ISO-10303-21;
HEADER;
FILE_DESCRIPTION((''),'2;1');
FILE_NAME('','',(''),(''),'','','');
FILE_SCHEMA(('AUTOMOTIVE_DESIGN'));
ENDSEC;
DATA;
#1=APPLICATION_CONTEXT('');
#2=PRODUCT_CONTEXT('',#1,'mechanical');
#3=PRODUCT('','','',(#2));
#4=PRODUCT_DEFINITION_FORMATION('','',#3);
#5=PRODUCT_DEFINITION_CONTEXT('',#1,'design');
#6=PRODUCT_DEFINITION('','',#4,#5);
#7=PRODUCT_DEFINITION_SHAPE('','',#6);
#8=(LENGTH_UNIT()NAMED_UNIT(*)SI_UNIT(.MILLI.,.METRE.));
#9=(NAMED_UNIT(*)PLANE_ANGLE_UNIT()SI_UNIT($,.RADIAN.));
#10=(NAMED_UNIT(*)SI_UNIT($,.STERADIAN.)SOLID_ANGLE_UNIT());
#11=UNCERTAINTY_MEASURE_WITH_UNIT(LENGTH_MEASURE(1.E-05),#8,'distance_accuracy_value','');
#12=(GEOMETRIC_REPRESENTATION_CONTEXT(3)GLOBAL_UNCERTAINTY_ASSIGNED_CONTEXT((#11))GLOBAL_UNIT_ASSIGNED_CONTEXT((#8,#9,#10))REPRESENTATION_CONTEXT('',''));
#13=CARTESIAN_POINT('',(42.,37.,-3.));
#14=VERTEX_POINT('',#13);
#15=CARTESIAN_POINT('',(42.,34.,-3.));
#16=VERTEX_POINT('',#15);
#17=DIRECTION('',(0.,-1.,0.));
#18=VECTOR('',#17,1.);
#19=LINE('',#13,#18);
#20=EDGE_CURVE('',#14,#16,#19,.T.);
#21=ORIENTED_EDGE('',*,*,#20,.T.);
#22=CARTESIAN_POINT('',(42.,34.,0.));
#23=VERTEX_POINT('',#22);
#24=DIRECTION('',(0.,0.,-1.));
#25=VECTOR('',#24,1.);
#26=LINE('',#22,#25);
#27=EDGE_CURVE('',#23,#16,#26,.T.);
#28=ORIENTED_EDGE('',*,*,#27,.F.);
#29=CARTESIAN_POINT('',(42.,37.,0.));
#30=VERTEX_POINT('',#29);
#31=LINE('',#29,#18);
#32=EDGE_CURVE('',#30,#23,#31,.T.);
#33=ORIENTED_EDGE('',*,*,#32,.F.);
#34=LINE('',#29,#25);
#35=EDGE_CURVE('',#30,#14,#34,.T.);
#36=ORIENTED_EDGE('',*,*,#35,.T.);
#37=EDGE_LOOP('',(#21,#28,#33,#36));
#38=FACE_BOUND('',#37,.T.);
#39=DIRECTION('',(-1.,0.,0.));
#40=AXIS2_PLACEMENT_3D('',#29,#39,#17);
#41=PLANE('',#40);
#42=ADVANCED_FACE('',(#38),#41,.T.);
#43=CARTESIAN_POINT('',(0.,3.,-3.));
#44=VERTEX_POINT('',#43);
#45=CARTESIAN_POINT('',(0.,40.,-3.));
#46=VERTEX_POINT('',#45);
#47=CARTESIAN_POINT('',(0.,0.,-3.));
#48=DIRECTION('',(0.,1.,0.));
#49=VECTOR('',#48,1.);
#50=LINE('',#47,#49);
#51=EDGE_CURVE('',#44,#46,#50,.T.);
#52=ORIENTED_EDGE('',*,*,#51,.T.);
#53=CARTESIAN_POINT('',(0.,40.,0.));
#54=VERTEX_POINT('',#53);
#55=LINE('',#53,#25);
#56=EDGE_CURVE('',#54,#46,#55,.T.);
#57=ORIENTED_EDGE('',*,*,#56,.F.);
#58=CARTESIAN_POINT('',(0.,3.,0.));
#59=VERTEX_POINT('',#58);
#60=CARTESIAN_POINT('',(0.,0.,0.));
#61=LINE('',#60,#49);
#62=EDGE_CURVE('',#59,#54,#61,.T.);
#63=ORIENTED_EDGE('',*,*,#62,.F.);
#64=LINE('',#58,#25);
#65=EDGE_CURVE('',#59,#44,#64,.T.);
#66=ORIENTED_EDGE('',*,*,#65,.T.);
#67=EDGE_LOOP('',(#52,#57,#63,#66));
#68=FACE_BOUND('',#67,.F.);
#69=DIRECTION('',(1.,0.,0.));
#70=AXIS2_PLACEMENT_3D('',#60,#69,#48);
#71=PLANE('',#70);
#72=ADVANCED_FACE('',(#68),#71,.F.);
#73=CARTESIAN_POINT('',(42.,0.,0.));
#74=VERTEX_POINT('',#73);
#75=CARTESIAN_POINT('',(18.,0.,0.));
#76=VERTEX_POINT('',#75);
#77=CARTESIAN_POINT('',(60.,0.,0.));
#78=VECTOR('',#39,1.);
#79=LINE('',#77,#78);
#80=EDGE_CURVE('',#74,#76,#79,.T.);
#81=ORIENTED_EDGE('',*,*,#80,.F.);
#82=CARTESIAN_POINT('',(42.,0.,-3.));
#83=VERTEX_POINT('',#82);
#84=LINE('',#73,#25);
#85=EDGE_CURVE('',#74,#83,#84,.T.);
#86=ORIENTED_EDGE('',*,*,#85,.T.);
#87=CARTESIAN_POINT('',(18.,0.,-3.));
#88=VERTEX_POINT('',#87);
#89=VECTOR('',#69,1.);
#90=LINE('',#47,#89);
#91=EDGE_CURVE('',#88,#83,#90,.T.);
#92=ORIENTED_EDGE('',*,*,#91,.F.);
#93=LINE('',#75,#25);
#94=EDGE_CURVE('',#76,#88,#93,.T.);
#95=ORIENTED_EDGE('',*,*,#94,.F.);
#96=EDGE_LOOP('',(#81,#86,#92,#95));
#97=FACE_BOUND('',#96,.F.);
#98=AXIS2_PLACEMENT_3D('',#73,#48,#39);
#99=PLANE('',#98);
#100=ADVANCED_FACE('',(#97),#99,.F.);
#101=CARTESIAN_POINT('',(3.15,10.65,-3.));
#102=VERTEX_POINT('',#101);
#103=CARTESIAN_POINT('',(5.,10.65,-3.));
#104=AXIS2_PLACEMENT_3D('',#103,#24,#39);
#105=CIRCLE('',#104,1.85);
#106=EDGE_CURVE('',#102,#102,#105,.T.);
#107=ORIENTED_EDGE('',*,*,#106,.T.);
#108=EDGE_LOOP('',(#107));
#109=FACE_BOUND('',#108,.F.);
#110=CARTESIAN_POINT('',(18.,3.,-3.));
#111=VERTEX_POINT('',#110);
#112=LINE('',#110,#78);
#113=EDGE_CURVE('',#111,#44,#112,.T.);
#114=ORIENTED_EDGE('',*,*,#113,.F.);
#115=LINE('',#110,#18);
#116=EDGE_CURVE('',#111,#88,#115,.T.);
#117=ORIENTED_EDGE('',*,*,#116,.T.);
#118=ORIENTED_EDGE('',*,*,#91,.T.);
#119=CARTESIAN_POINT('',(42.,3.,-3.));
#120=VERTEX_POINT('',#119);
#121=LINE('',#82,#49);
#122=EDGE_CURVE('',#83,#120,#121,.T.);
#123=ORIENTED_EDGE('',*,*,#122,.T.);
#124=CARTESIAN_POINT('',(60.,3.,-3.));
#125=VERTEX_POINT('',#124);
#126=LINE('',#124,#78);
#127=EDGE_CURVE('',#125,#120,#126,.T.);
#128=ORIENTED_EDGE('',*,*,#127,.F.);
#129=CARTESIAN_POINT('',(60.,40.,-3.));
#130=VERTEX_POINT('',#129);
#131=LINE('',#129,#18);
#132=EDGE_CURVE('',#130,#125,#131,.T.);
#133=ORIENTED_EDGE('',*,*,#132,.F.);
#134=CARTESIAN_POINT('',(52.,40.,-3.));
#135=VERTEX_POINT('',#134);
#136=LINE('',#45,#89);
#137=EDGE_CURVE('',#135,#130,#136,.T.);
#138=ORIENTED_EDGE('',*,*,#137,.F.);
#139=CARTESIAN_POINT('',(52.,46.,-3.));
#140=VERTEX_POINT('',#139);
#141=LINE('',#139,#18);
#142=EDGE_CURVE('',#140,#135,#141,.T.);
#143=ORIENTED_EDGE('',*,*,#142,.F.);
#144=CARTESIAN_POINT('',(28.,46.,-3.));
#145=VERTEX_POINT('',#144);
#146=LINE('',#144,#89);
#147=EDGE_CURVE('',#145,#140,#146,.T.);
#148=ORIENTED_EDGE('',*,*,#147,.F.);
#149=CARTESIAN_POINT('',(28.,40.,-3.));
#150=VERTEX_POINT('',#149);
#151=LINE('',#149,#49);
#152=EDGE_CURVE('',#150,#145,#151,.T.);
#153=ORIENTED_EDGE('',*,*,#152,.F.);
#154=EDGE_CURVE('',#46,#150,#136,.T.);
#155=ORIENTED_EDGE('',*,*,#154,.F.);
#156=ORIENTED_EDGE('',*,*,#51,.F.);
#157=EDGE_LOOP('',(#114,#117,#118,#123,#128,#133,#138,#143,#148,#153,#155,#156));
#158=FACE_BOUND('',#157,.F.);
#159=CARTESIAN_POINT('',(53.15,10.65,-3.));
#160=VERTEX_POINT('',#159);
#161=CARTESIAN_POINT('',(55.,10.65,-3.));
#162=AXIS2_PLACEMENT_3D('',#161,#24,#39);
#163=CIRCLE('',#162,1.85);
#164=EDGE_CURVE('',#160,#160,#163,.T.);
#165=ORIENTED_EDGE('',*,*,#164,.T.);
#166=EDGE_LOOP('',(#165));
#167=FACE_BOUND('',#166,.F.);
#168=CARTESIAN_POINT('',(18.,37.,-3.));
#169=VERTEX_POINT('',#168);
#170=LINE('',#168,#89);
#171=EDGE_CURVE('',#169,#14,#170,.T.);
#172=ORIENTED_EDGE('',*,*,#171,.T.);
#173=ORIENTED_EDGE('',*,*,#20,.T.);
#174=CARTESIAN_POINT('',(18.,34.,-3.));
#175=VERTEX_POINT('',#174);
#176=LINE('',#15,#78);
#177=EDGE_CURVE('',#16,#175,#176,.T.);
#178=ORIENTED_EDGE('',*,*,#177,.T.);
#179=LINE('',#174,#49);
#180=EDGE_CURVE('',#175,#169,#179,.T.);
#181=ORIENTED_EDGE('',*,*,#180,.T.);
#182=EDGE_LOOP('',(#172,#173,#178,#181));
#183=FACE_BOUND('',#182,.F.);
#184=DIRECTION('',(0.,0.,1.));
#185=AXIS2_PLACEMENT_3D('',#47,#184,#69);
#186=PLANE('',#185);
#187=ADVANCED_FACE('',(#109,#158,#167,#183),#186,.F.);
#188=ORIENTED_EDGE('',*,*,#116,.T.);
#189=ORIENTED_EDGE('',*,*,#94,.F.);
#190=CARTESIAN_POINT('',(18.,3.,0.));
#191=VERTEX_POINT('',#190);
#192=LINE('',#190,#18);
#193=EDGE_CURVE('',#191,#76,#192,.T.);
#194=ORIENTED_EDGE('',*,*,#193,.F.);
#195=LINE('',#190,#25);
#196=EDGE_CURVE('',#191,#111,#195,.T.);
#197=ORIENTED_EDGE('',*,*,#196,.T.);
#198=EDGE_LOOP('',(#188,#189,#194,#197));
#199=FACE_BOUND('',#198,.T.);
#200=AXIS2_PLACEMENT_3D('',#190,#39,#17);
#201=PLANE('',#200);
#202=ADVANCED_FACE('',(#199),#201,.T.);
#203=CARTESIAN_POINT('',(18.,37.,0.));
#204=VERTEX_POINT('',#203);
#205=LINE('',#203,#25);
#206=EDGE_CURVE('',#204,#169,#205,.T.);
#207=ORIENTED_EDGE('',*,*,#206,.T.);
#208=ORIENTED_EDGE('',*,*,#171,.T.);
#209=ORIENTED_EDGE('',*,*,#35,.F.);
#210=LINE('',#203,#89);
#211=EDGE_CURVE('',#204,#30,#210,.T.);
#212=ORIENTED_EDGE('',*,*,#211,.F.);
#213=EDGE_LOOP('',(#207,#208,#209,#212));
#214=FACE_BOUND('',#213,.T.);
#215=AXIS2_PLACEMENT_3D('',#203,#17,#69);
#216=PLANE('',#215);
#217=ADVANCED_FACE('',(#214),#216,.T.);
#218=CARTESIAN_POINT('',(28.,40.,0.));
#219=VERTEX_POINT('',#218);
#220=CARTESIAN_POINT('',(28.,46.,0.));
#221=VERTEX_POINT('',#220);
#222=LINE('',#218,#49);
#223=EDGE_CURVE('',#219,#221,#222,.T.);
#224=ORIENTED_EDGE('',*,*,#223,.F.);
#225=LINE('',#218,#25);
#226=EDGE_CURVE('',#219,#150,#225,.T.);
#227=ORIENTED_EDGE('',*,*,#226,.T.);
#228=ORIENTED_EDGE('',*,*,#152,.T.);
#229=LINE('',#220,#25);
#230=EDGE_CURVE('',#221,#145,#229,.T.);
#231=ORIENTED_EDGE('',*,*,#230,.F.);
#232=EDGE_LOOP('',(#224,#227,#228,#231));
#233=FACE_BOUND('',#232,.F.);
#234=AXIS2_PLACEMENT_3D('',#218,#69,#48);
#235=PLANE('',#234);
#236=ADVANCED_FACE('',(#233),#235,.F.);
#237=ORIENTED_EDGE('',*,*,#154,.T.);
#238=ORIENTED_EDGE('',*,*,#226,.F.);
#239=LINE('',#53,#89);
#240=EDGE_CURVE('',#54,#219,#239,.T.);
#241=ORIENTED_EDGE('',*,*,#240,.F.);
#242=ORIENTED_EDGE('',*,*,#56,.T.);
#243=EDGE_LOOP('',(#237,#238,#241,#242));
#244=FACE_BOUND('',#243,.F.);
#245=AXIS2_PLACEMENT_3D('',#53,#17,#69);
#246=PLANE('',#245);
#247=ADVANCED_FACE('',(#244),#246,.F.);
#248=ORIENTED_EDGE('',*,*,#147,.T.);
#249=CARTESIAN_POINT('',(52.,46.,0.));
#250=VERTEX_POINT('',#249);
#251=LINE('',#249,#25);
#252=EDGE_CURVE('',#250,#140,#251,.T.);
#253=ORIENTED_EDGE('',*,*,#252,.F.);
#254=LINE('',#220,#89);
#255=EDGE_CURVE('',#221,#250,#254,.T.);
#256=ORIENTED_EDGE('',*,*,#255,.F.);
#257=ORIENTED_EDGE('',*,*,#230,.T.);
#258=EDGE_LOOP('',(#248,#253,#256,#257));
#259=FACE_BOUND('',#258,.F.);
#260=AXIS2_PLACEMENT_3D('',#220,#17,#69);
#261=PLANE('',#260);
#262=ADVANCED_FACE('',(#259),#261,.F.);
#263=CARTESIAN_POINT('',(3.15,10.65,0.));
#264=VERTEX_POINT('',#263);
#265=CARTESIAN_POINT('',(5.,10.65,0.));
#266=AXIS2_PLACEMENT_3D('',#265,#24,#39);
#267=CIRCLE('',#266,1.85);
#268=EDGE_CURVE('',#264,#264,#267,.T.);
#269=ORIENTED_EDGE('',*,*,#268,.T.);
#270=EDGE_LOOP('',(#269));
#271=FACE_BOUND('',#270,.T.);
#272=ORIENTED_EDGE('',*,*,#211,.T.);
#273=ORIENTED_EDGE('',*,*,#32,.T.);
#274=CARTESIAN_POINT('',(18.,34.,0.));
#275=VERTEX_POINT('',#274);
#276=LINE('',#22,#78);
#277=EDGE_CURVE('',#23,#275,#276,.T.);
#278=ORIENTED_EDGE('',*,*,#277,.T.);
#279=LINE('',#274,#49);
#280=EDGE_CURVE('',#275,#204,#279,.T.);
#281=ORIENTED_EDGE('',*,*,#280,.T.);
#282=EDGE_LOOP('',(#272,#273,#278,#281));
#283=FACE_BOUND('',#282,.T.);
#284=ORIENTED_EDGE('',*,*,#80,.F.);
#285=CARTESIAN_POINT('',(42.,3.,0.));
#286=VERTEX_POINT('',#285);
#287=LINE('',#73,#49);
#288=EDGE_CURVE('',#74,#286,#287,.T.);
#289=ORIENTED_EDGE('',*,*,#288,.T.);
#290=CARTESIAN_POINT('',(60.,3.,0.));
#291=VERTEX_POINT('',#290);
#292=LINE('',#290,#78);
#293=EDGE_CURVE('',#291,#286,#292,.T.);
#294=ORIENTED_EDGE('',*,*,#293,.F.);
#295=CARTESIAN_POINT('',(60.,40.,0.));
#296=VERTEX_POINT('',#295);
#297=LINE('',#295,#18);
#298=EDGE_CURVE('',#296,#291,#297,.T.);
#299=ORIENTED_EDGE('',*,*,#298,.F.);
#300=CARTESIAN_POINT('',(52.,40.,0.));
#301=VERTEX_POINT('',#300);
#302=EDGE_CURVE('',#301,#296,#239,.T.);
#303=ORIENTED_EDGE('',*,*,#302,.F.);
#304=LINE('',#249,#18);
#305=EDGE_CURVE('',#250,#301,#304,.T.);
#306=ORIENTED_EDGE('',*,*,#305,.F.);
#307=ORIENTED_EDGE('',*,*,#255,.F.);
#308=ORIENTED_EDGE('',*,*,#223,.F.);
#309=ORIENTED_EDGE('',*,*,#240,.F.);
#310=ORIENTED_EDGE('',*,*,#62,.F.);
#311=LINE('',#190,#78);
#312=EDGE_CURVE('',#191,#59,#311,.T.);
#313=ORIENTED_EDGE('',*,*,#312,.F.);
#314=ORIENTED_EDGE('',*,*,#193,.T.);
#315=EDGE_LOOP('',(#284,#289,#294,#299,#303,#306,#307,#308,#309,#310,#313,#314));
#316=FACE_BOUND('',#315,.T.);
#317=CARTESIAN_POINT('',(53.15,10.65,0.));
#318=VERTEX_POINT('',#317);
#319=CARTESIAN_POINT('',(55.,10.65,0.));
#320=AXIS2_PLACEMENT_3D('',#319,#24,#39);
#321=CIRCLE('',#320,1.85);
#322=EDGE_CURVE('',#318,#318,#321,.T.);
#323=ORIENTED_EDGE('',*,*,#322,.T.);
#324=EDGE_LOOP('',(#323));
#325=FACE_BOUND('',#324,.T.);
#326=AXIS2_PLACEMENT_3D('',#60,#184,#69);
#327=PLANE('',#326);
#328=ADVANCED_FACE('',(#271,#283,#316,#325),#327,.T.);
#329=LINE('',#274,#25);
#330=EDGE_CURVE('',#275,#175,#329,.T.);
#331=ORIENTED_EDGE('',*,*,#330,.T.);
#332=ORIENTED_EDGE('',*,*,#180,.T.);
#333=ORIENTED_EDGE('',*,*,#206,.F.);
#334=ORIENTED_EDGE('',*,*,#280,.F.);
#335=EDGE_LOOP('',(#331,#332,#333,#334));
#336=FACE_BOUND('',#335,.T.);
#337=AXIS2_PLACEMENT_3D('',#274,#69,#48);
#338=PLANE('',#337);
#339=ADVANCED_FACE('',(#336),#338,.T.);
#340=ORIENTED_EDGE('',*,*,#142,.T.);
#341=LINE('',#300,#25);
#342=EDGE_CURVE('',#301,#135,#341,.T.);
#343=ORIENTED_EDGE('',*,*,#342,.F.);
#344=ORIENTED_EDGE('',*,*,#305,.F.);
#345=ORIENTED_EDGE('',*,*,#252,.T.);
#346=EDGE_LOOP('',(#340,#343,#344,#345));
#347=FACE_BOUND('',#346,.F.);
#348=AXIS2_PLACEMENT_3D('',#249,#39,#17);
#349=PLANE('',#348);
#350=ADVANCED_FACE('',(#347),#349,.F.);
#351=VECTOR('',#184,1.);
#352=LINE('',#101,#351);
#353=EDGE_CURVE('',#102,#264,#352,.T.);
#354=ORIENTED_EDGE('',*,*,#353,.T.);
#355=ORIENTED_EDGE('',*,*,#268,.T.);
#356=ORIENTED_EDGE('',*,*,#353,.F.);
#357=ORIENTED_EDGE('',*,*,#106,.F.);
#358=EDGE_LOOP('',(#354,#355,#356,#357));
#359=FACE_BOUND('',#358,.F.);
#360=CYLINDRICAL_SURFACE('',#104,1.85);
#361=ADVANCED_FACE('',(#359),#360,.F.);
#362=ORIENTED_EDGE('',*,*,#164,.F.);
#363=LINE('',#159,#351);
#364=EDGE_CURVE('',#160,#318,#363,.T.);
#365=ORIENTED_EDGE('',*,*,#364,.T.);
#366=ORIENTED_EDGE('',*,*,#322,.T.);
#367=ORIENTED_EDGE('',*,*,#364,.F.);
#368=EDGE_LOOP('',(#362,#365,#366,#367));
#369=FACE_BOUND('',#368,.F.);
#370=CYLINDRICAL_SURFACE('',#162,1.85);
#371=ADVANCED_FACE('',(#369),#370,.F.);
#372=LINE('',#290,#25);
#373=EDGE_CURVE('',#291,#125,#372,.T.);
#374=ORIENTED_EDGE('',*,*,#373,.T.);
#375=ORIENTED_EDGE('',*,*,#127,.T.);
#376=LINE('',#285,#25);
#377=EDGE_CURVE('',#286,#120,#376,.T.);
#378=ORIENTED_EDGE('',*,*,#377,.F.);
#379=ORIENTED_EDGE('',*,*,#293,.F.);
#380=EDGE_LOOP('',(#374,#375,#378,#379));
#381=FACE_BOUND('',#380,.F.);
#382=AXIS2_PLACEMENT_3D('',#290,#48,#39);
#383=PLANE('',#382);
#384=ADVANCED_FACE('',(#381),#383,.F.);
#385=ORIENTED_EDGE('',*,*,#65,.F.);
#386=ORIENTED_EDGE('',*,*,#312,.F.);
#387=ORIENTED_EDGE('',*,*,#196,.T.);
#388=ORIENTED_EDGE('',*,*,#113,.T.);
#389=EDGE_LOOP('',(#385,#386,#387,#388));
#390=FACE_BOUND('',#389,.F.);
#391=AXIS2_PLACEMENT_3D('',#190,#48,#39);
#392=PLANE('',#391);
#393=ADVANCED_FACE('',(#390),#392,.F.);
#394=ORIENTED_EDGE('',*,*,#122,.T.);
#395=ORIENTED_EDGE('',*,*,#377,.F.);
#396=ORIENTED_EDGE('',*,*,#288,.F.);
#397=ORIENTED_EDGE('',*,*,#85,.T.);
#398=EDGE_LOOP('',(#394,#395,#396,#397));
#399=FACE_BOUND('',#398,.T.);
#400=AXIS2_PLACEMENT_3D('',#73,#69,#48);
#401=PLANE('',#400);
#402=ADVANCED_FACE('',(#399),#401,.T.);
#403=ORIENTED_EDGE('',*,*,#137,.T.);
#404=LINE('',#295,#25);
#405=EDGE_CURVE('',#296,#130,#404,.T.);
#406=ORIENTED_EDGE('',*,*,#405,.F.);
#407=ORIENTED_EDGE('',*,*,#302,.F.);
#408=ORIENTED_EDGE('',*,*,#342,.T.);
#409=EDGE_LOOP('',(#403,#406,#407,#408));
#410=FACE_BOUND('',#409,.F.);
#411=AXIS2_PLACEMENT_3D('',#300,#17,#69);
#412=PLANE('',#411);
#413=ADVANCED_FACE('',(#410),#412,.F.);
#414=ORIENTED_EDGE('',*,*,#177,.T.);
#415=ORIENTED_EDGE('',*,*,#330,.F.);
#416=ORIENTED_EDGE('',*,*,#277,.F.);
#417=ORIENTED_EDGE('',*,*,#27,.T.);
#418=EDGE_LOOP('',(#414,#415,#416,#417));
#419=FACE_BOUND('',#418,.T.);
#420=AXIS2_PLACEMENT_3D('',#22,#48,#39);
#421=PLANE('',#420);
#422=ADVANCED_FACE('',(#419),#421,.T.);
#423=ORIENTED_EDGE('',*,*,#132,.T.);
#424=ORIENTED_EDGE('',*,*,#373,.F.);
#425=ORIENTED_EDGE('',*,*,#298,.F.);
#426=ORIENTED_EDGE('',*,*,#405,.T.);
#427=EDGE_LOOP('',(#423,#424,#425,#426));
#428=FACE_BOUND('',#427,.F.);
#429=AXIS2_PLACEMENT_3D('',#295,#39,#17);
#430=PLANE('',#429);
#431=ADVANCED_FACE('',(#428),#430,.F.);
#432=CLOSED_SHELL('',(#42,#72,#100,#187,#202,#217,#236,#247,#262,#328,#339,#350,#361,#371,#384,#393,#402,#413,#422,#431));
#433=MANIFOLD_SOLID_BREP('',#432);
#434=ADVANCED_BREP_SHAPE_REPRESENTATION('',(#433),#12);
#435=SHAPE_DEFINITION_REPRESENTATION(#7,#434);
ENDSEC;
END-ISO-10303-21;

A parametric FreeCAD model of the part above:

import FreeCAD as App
import Part
import Sketcher

doc = App.newDocument("Part")
body = doc.addObject("PartDesign::Body", "Body")

sketch1 = body.newObject("Sketcher::SketchObject", "Sketch")
sketch1.AttachmentSupport = (doc.getObject("XY_Plane"), [""])
sketch1.MapMode = "FlatFace"
sketch1.addGeometry([
    Part.LineSegment(App.Vector(60, 0, 0), App.Vector(60, 40, 0)),
    Part.LineSegment(App.Vector(60, 40, 0), App.Vector(52, 40, 0)),
    Part.LineSegment(App.Vector(52, 40, 0), App.Vector(52, 46, 0)),
    Part.LineSegment(App.Vector(52, 46, 0), App.Vector(28, 46, 0)),
    Part.LineSegment(App.Vector(28, 46, 0), App.Vector(28, 40, 0)),
    Part.LineSegment(App.Vector(28, 40, 0), App.Vector(0, 40, 0)),
    Part.LineSegment(App.Vector(0, 40, 0), App.Vector(0, 0, 0)),
    Part.LineSegment(App.Vector(0, 0, 0), App.Vector(60, 0, 0)),
    Part.LineSegment(App.Vector(42, 37, 0), App.Vector(42, 34, 0)),
    Part.LineSegment(App.Vector(42, 34, 0), App.Vector(18, 34, 0)),
    Part.LineSegment(App.Vector(18, 34, 0), App.Vector(18, 37, 0)),
    Part.LineSegment(App.Vector(18, 37, 0), App.Vector(42, 37, 0)),
], False)
sketch1.addConstraint([
    Sketcher.Constraint("Coincident", 0, 2, 1, 1),
    Sketcher.Constraint("Coincident", 1, 2, 2, 1),
    Sketcher.Constraint("Coincident", 2, 2, 3, 1),
    Sketcher.Constraint("Coincident", 3, 2, 4, 1),
    Sketcher.Constraint("Coincident", 4, 2, 5, 1),
    Sketcher.Constraint("Coincident", 5, 2, 6, 1),
    Sketcher.Constraint("Coincident", 6, 2, 7, 1),
    Sketcher.Constraint("Coincident", 7, 2, 0, 1),
    Sketcher.Constraint("Coincident", 8, 2, 9, 1),
    Sketcher.Constraint("Coincident", 9, 2, 10, 1),
    Sketcher.Constraint("Coincident", 10, 2, 11, 1),
    Sketcher.Constraint("Coincident", 11, 2, 8, 1),
    Sketcher.Constraint("Vertical", 0),
    Sketcher.Constraint("Horizontal", 1),
    Sketcher.Constraint("Vertical", 2),
    Sketcher.Constraint("Horizontal", 3),
    Sketcher.Constraint("Vertical", 4),
    Sketcher.Constraint("Horizontal", 5),
    Sketcher.Constraint("Vertical", 6),
    Sketcher.Constraint("Horizontal", 7),
    Sketcher.Constraint("Vertical", 8),
    Sketcher.Constraint("Horizontal", 9),
    Sketcher.Constraint("Vertical", 10),
    Sketcher.Constraint("Horizontal", 11),
    Sketcher.Constraint("Coincident", 6, 2, -1, 1),
    Sketcher.Constraint("Horizontal", 1, 2, 4, 2),
    Sketcher.Constraint("Equal", 3, 9),
    Sketcher.Constraint("DistanceX", 1, 2, 1, 1, 8.0),
    Sketcher.Constraint("DistanceX", 3, 2, 3, 1, 24.0),
    Sketcher.Constraint("DistanceY", 0, 1, 0, 2, 40.0),
    Sketcher.Constraint("DistanceY", 2, 1, 2, 2, 6.0),
    Sketcher.Constraint("DistanceY", 8, 2, 8, 1, 3.0),
    Sketcher.Constraint("DistanceY", 8, 2, 1, 2, 6.0),
    Sketcher.Constraint("DistanceX", 5, 2, 5, 1, 28.0),
    Sketcher.Constraint("DistanceX", -1, 1, 8, 2, 42.0),
])
pad1 = body.newObject("PartDesign::Pad", "Pad")
pad1.Profile = sketch1
pad1.Length = 3
pad1.Reversed = True

sketch2 = body.newObject("Sketcher::SketchObject", "Sketch001")
sketch2.AttachmentSupport = (doc.getObject("XY_Plane"), [""])
sketch2.MapMode = "FlatFace"
sketch2.addGeometry([
    Part.LineSegment(App.Vector(42, 3, 0), App.Vector(42, 0, 0)),
    Part.LineSegment(App.Vector(42, 0, 0), App.Vector(60, 0, 0)),
    Part.LineSegment(App.Vector(60, 0, 0), App.Vector(60, 3, 0)),
    Part.LineSegment(App.Vector(60, 3, 0), App.Vector(42, 3, 0)),
    Part.LineSegment(App.Vector(18, 0, 0), App.Vector(18, 3, 0)),
    Part.LineSegment(App.Vector(18, 3, 0), App.Vector(0, 3, 0)),
    Part.LineSegment(App.Vector(0, 3, 0), App.Vector(0, 0, 0)),
    Part.LineSegment(App.Vector(0, 0, 0), App.Vector(18, 0, 0)),
], False)
sketch2.addConstraint([
    Sketcher.Constraint("Coincident", 0, 2, 1, 1),
    Sketcher.Constraint("Coincident", 1, 2, 2, 1),
    Sketcher.Constraint("Coincident", 2, 2, 3, 1),
    Sketcher.Constraint("Coincident", 3, 2, 0, 1),
    Sketcher.Constraint("Coincident", 4, 2, 5, 1),
    Sketcher.Constraint("Coincident", 5, 2, 6, 1),
    Sketcher.Constraint("Coincident", 6, 2, 7, 1),
    Sketcher.Constraint("Coincident", 7, 2, 4, 1),
    Sketcher.Constraint("Vertical", 0),
    Sketcher.Constraint("Horizontal", 1),
    Sketcher.Constraint("Vertical", 2),
    Sketcher.Constraint("Horizontal", 3),
    Sketcher.Constraint("Vertical", 4),
    Sketcher.Constraint("Horizontal", 5),
    Sketcher.Constraint("Vertical", 6),
    Sketcher.Constraint("Horizontal", 7),
    Sketcher.Constraint("Coincident", 6, 2, -1, 1),
    Sketcher.Constraint("PointOnObject", 0, 2, -1),
    Sketcher.Constraint("Horizontal", 3, 2, 4, 2),
    Sketcher.Constraint("Equal", 3, 5),
    Sketcher.Constraint("DistanceX", 1, 1, 1, 2, 18.0),
    Sketcher.Constraint("DistanceY", 0, 2, 0, 1, 3.0),
    Sketcher.Constraint("DistanceX", -1, 1, 0, 2, 42.0),
])
pocket1 = body.newObject("PartDesign::Pocket", "Pocket")
pocket1.Profile = sketch2
pocket1.Length = 3

sketch3 = body.newObject("Sketcher::SketchObject", "Sketch002")
sketch3.AttachmentSupport = (doc.getObject("XY_Plane"), [""])
sketch3.MapMode = "FlatFace"
sketch3.AttachmentOffset = App.Placement(App.Vector(0, 0, -3), App.Rotation())
sketch3.addGeometry([
    Part.Circle(App.Vector(5, 10.7, 0), App.Vector(0, 0, 1), 1.9),
    Part.Circle(App.Vector(55, 10.7, 0), App.Vector(0, 0, 1), 1.9),
], False)
sketch3.addConstraint([
    Sketcher.Constraint("Equal", 0, 1),
    Sketcher.Constraint("Horizontal", 0, 3, 1, 3),
    Sketcher.Constraint("Diameter", 0, 3.7),
    Sketcher.Constraint("DistanceX", -1, 1, 0, 3, 5.0),
    Sketcher.Constraint("DistanceX", -1, 1, 1, 3, 55.0),
    Sketcher.Constraint("DistanceY", -1, 1, 0, 3, 10.65),
])
pocket2 = body.newObject("PartDesign::Pocket", "Pocket001")
pocket2.Profile = sketch3
pocket2.Length = 22.4
pocket2.Reversed = True

doc.recompute()
